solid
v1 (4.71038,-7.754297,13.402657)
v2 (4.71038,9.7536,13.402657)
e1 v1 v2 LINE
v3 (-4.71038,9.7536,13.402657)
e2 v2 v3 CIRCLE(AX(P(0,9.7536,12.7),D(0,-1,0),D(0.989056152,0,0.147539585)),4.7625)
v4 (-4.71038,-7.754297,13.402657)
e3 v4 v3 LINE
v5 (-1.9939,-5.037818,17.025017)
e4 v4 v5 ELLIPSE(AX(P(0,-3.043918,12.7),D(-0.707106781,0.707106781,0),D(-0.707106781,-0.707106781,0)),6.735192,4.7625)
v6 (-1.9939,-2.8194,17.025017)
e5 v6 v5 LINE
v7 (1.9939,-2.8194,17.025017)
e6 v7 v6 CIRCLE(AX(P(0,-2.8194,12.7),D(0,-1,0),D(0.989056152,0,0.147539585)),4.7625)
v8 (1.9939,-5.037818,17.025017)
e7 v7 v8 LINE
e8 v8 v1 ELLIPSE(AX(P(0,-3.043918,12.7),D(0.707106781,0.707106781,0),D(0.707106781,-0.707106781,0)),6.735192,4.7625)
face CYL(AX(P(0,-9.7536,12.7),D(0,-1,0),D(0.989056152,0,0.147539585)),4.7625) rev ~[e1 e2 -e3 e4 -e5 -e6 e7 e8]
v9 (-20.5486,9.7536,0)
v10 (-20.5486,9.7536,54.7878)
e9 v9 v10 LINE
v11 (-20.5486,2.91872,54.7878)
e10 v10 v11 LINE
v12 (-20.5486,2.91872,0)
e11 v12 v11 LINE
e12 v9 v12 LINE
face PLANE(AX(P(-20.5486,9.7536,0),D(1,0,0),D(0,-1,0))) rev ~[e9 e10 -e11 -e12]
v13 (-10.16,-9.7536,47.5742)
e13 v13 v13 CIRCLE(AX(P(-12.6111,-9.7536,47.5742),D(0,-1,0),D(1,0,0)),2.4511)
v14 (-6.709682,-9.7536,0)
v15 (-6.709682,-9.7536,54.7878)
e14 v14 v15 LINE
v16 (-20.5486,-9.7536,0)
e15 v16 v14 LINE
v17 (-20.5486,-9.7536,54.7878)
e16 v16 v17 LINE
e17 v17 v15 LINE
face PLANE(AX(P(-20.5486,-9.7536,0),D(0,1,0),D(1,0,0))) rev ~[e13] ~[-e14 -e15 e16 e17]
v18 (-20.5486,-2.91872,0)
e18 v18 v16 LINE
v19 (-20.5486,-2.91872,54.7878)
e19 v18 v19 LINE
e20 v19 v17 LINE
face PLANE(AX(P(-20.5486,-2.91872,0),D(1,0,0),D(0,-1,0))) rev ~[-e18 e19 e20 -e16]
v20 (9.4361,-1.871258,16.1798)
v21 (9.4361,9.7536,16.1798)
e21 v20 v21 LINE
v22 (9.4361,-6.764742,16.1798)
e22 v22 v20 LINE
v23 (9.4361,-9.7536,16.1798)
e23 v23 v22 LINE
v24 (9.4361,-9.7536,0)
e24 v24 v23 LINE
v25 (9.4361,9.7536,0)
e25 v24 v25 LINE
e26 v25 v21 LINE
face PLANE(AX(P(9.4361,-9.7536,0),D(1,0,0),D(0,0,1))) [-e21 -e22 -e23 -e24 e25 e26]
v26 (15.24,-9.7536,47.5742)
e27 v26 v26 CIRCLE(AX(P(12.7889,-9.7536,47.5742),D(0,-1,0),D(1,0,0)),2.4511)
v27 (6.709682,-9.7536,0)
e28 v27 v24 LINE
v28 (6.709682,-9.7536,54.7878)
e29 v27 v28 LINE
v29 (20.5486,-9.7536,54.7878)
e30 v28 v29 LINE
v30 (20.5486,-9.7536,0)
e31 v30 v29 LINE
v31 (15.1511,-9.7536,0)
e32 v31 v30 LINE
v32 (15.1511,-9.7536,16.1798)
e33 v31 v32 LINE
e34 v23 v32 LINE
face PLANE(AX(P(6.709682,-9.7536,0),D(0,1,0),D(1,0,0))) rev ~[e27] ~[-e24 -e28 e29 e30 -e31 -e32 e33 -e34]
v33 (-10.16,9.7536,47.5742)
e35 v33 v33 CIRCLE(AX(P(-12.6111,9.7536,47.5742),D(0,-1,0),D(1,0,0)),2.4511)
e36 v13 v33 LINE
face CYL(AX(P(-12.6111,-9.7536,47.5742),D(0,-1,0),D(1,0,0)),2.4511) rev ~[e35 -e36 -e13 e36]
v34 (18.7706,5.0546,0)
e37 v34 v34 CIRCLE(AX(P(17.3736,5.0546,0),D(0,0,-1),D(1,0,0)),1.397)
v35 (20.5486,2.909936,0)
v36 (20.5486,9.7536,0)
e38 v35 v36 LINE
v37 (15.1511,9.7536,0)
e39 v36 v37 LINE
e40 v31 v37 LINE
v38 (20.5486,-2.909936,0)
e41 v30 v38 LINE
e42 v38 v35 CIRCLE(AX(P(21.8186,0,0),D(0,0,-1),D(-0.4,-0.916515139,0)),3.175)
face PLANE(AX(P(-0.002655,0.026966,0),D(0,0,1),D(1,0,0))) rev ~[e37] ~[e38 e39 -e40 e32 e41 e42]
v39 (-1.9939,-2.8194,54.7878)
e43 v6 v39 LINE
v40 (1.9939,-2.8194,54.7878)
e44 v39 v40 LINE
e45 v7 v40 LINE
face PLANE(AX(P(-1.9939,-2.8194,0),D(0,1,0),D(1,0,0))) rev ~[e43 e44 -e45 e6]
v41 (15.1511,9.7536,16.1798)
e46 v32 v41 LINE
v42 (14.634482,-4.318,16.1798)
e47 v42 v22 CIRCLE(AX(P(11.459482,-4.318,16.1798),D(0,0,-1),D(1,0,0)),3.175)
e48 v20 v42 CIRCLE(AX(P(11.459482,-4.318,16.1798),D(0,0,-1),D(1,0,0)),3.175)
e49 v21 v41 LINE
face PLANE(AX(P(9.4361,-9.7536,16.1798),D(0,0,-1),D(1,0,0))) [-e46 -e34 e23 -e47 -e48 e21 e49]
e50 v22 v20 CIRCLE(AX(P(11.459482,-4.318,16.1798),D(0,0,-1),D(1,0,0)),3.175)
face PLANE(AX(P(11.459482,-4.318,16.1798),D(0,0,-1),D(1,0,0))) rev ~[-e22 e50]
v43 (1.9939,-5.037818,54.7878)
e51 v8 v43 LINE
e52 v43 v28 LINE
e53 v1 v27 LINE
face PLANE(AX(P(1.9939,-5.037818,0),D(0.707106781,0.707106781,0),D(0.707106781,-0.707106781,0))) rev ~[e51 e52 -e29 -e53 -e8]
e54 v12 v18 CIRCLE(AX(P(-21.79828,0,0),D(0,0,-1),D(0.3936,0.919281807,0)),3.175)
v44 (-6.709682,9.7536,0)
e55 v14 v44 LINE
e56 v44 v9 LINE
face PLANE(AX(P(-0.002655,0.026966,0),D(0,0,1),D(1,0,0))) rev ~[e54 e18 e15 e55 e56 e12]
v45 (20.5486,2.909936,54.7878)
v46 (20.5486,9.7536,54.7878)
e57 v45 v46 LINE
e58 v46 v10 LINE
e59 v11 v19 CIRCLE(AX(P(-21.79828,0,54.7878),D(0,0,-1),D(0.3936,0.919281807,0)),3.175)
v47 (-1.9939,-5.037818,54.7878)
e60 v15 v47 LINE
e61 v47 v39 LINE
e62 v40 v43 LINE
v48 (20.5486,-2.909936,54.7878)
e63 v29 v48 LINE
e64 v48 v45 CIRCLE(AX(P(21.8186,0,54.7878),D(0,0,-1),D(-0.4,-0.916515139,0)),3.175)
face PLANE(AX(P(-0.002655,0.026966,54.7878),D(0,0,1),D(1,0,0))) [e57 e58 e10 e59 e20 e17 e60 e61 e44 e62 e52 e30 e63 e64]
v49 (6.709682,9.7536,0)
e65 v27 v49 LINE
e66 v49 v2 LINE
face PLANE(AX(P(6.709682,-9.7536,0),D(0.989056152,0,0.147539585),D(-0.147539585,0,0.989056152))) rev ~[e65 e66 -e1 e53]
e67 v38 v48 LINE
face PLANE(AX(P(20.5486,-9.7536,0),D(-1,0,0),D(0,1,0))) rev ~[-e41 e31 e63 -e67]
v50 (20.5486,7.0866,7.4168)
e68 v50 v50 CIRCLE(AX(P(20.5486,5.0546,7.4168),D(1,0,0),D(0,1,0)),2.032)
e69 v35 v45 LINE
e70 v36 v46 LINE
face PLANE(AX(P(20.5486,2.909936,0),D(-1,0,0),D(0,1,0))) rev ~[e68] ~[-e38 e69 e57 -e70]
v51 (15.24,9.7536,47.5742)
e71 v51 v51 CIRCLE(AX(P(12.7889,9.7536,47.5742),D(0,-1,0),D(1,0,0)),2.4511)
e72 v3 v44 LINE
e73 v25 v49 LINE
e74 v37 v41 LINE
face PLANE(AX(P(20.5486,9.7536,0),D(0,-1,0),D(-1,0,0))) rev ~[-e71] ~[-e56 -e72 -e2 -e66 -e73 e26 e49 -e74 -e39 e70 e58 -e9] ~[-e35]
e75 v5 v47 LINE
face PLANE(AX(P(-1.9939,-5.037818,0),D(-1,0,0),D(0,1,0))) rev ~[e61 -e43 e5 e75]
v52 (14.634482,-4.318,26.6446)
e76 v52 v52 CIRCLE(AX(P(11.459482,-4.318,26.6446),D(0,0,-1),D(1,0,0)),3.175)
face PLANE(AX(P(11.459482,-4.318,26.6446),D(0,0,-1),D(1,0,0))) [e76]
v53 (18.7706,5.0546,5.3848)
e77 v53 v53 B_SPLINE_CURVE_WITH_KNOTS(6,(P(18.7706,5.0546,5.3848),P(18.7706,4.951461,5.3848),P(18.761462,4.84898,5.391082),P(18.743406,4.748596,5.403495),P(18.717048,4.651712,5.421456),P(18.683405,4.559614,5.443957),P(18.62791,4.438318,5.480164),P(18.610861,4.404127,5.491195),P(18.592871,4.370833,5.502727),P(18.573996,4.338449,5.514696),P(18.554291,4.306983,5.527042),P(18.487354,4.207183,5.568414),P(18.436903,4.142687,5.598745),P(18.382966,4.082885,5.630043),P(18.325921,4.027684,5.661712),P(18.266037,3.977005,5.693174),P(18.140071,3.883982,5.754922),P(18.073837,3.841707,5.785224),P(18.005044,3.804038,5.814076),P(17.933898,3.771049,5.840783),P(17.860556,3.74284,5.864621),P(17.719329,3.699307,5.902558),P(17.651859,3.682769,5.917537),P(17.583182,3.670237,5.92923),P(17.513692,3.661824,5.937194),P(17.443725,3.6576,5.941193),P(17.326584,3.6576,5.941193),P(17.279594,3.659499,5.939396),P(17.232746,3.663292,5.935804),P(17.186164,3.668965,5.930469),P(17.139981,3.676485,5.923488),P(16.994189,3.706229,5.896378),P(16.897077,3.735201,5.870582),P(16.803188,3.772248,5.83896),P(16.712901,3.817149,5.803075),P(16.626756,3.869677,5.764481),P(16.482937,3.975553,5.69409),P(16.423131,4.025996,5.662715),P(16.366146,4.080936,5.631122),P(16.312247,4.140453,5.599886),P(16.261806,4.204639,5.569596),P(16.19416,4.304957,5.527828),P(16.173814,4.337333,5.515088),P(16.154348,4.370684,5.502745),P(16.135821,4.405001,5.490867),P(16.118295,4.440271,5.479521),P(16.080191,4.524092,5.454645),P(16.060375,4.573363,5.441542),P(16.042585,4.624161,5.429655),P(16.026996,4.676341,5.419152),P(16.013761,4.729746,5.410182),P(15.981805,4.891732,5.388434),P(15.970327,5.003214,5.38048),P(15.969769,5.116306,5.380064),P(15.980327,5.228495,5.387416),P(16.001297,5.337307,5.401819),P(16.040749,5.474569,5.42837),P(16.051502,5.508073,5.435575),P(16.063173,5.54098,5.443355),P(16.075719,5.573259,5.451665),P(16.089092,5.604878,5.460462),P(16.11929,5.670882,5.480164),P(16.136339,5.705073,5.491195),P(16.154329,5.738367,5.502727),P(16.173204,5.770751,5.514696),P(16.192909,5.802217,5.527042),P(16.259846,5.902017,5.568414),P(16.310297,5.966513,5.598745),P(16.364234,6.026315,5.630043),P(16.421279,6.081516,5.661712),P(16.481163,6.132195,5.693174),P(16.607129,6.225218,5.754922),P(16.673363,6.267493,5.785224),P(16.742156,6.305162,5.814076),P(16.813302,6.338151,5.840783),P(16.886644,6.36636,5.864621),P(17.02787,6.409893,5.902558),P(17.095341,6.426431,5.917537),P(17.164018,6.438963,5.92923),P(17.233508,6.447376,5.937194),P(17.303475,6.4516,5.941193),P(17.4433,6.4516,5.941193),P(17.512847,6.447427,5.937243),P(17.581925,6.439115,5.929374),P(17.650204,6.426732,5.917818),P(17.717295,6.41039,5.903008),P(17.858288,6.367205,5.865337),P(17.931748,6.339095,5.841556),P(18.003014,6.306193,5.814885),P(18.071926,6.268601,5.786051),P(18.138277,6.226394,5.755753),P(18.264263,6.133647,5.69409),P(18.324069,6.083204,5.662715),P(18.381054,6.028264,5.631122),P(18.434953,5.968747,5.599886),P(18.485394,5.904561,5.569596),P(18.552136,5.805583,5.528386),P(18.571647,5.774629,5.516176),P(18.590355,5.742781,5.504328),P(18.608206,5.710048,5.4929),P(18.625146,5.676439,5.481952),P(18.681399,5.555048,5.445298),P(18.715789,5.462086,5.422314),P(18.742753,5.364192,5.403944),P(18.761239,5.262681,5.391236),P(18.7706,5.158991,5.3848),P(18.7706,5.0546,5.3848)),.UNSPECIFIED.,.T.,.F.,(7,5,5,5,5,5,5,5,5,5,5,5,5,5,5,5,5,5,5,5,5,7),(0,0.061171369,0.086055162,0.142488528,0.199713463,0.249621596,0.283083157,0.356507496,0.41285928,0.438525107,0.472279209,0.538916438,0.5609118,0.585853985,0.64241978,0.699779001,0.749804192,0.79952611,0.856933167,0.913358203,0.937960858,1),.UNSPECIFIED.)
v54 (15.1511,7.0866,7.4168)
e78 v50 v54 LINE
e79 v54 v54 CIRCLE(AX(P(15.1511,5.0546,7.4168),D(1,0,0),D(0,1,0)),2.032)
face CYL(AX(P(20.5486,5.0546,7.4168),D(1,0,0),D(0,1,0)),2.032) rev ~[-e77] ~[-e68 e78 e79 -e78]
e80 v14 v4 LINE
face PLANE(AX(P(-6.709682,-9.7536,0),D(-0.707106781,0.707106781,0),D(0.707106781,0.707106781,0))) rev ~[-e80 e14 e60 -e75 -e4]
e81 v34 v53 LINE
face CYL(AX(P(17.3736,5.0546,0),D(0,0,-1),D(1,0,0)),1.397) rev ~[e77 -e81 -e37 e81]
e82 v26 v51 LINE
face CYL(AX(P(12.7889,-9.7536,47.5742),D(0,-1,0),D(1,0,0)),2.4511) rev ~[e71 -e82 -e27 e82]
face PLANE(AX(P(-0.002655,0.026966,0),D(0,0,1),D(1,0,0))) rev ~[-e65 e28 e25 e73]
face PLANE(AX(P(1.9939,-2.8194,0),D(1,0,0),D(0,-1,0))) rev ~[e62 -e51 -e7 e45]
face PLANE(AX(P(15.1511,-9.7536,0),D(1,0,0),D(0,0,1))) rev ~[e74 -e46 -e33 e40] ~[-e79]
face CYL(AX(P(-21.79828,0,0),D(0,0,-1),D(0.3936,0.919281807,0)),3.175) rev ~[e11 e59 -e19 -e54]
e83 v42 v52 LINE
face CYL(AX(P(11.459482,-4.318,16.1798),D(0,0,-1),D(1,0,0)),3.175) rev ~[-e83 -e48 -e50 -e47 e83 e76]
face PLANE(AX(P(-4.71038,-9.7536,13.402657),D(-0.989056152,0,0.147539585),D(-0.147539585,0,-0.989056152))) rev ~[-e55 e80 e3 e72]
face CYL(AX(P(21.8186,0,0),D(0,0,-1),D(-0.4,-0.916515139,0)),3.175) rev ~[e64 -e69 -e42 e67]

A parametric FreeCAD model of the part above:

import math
import FreeCAD as App
import Part
import Sketcher
Q = App.Units.Quantity


def add_polygon(sketch, points):
    """Adds a closed chain of lines whose ends are joined by coincident constraints."""
    first, n = sketch.GeometryCount, len(points)
    for a, b in zip(points, points[1:] + points[:1]):
        sketch.addGeometry(Part.LineSegment(App.Vector(*a, 0), App.Vector(*b, 0)), False)
    for i in range(n):
        sketch.addConstraint(Sketcher.Constraint("Coincident", first + i, 2, first + (i + 1) % n, 1))

doc = App.newDocument("Part")
body = doc.addObject("PartDesign::Body", "Body")

# Sketch on XY plane
sketch1 = body.newObject("Sketcher::SketchObject", "Sketch")
sketch1.AttachmentSupport = (doc.getObject("XY_Plane"), [""])
sketch1.MapMode = "FlatFace"
sketch1.addGeometry(Part.LineSegment(App.Vector(20.5, 2.9, 0), App.Vector(20.5, 9.8, 0)), False)
sketch1.addGeometry(Part.LineSegment(App.Vector(20.5, 9.8, 0), App.Vector(-20.5, 9.8, 0)), False)
sketch1.addGeometry(Part.LineSegment(App.Vector(-20.5, 9.8, 0), App.Vector(-20.5, 2.9, 0)), False)
sketch1.addGeometry(Part.ArcOfCircle(Part.Circle(App.Vector(-21.8, 0, 0), App.Vector(0, 0, 1), 3.2), math.radians(-67), math.radians(67)), False)
sketch1.addGeometry(Part.LineSegment(App.Vector(-20.5, -2.9, 0), App.Vector(-20.5, -9.8, 0)), False)
sketch1.addGeometry(Part.LineSegment(App.Vector(-20.5, -9.8, 0), App.Vector(-6.7, -9.8, 0)), False)
sketch1.addGeometry(Part.LineSegment(App.Vector(-6.7, -9.8, 0), App.Vector(-2, -5, 0)), False)
sketch1.addGeometry(Part.LineSegment(App.Vector(-2, -5, 0), App.Vector(-2, -2.8, 0)), False)
sketch1.addGeometry(Part.LineSegment(App.Vector(-2, -2.8, 0), App.Vector(2, -2.8, 0)), False)
sketch1.addGeometry(Part.LineSegment(App.Vector(2, -2.8, 0), App.Vector(2, -5, 0)), False)
sketch1.addGeometry(Part.LineSegment(App.Vector(2, -5, 0), App.Vector(6.7, -9.8, 0)), False)
sketch1.addGeometry(Part.LineSegment(App.Vector(6.7, -9.8, 0), App.Vector(20.5, -9.8, 0)), False)
sketch1.addGeometry(Part.LineSegment(App.Vector(20.5, -9.8, 0), App.Vector(20.5, -2.9, 0)), False)
sketch1.addGeometry(Part.ArcOfCircle(Part.Circle(App.Vector(21.8, 0, 0), App.Vector(0, 0, 1), 3.2), math.radians(114), math.radians(246)), False)
sketch1.addConstraint(Sketcher.Constraint("Coincident", 0, 2, 1, 1))
sketch1.addConstraint(Sketcher.Constraint("Coincident", 1, 2, 2, 1))
sketch1.addConstraint(Sketcher.Constraint("Coincident", 2, 2, 3, 2))
sketch1.addConstraint(Sketcher.Constraint("Coincident", 3, 1, 4, 1))
sketch1.addConstraint(Sketcher.Constraint("Coincident", 4, 2, 5, 1))
sketch1.addConstraint(Sketcher.Constraint("Coincident", 5, 2, 6, 1))
sketch1.addConstraint(Sketcher.Constraint("Coincident", 6, 2, 7, 1))
sketch1.addConstraint(Sketcher.Constraint("Coincident", 7, 2, 8, 1))
sketch1.addConstraint(Sketcher.Constraint("Coincident", 8, 2, 9, 1))
sketch1.addConstraint(Sketcher.Constraint("Coincident", 9, 2, 10, 1))
sketch1.addConstraint(Sketcher.Constraint("Coincident", 10, 2, 11, 1))
sketch1.addConstraint(Sketcher.Constraint("Coincident", 11, 2, 12, 1))
sketch1.addConstraint(Sketcher.Constraint("Coincident", 12, 2, 13, 2))
sketch1.addConstraint(Sketcher.Constraint("Coincident", 13, 1, 0, 1))
sketch1.addConstraint(Sketcher.Constraint("Vertical", 0))
sketch1.addConstraint(Sketcher.Constraint("Horizontal", 1))
sketch1.addConstraint(Sketcher.Constraint("Vertical", 2))
sketch1.addConstraint(Sketcher.Constraint("Vertical", 4))
sketch1.addConstraint(Sketcher.Constraint("Horizontal", 5))
sketch1.addConstraint(Sketcher.Constraint("Vertical", 7))
sketch1.addConstraint(Sketcher.Constraint("Horizontal", 8))
sketch1.addConstraint(Sketcher.Constraint("Vertical", 9))
sketch1.addConstraint(Sketcher.Constraint("Horizontal", 11))
sketch1.addConstraint(Sketcher.Constraint("Vertical", 12))
sketch1.addConstraint(Sketcher.Constraint("Equal", 3, 13))
sketch1.addConstraint(Sketcher.Constraint("Symmetric", 0, 2, 4, 2, -1, 1))
sketch1.addConstraint(Sketcher.Constraint("Symmetric", 1, 2, 11, 2, -1, 1))
sketch1.addConstraint(Sketcher.Constraint("Symmetric", 6, 2, 9, 2, -2))
sketch1.addConstraint(Sketcher.Constraint("Symmetric", 2, 2, 3, 1, -1))
sketch1.addConstraint(Sketcher.Constraint("PointOnObject", 13, 3, -1))
sketch1.addConstraint(Sketcher.Constraint("Perpendicular", 6, 10))
sketch1.addConstraint(Sketcher.Constraint("Equal", 5, 11))
sketch1.addConstraint(Sketcher.Constraint("Radius", 3, Q("0.125 in")))
sketch1.addConstraint(Sketcher.Constraint("DistanceX", 1, 2, 1, 1, Q("1.618 in")))
sketch1.addConstraint(Sketcher.Constraint("DistanceX", 8, 1, 8, 2, Q("0.157 in")))
sketch1.addConstraint(Sketcher.Constraint("DistanceX", 0, 2, 13, 3, Q("0.05 in")))
sketch1.addConstraint(Sketcher.Constraint("DistanceY", -1, 1, 0, 2, Q("0.384 in")))
sketch1.addConstraint(Sketcher.Constraint("DistanceY", 7, 2, -1, 1, Q("0.111 in")))
sketch1.addConstraint(Sketcher.Constraint("DistanceX", 3, 3, -1, 1, Q("0.8582 in")))
sketch1.addConstraint(Sketcher.Constraint("DistanceX", 5, 1, 5, 2, Q("13.838918 mm")))
pad1 = body.newObject("PartDesign::Pad", "Pad")
pad1.Profile = sketch1
pad1.Length = Q("2.157 in")

# Sketch on XZ plane
sketch2 = body.newObject("Sketcher::SketchObject", "Sketch001")
sketch2.AttachmentSupport = (doc.getObject("XZ_Plane"), [""])
sketch2.MapMode = "FlatFace"
sketch2.AttachmentOffset = App.Placement(App.Vector(0, 0, 0.384 * 25.4), App.Rotation())
sketch2.addGeometry(Part.Circle(App.Vector(-12.6, 47.6, 0), App.Vector(0, 0, 1), 2.5), False)  # 0
sketch2.addGeometry(Part.Circle(App.Vector(12.8, 47.6, 0), App.Vector(0, 0, 1), 2.5), False)  # 1
add_polygon(sketch2, [(9.4, 16.2), (9.4, 0), (15.2, 0), (15.2, 16.2)])  # lines 2-5
sketch2.addGeometry(Part.LineSegment(App.Vector(6.7, 0, 0), App.Vector(4.7, 13.4, 0)), False)  # 6
sketch2.addGeometry(Part.ArcOfCircle(Part.Circle(App.Vector(0, 12.7, 0), App.Vector(0, 0, 1), 4.8), math.radians(8), math.radians(172)), False)  # 7
sketch2.addGeometry(Part.LineSegment(App.Vector(-4.7, 13.4, 0), App.Vector(-6.7, 0, 0)), False)  # 8
sketch2.addGeometry(Part.LineSegment(App.Vector(-6.7, 0, 0), App.Vector(6.7, 0, 0)), False)  # 9
sketch2.addConstraint(Sketcher.Constraint("Tangent", 6, 2, 7, 1))
sketch2.addConstraint(Sketcher.Constraint("Tangent", 7, 2, 8, 1))
sketch2.addConstraint(Sketcher.Constraint("Coincident", 8, 2, 9, 1))
sketch2.addConstraint(Sketcher.Constraint("Coincident", 9, 2, 6, 1))
sketch2.addConstraint(Sketcher.Constraint("Vertical", 2))
sketch2.addConstraint(Sketcher.Constraint("Horizontal", 3))
sketch2.addConstraint(Sketcher.Constraint("Vertical", 4))
sketch2.addConstraint(Sketcher.Constraint("Horizontal", 5))
sketch2.addConstraint(Sketcher.Constraint("Horizontal", 9))
sketch2.addConstraint(Sketcher.Constraint("Equal", 0, 1))
sketch2.addConstraint(Sketcher.Constraint("Symmetric", 8, 2, 9, 2, -1, 1))
sketch2.addConstraint(Sketcher.Constraint("PointOnObject", 7, 3, -2))
sketch2.addConstraint(Sketcher.Constraint("PointOnObject", 2, 2, -1))
sketch2.addConstraint(Sketcher.Constraint("Horizontal", 0, 3, 1, 3))
sketch2.addConstraint(Sketcher.Constraint("Diameter", 0, Q("0.193 in")))
sketch2.addConstraint(Sketcher.Constraint("Radius", 7, Q("0.1875 in")))
sketch2.addConstraint(Sketcher.Constraint("DistanceX", 0, 3, 1, 3, Q("1 in")))
sketch2.addConstraint(Sketcher.Constraint("DistanceY", -1, 1, 7, 3, Q("0.5 in")))
sketch2.addConstraint(Sketcher.Constraint("DistanceX", 3, 1, 3, 2, Q("0.225 in")))
sketch2.addConstraint(Sketcher.Constraint("DistanceY", 2, 2, 2, 1, Q("0.637 in")))
sketch2.addConstraint(Sketcher.Constraint("DistanceY", -1, 1, 0, 3, Q("1.873 in")))
sketch2.addConstraint(Sketcher.Constraint("DistanceX", 2, 2, 1, 3, Q("0.132 in")))
sketch2.addConstraint(Sketcher.Constraint("DistanceX", 0, 3, -1, 1, Q("0.4965 in")))
sketch2.addConstraint(Sketcher.Constraint("DistanceX", 9, 1, 9, 2, Q("13.419365 mm")))
pocket1 = body.newObject("PartDesign::Pocket", "Pocket")
pocket1.Profile = sketch2
pocket1.Length = Q("1 in")

# Sketch on XY plane
sketch3 = body.newObject("Sketcher::SketchObject", "Sketch002")
sketch3.AttachmentSupport = (doc.getObject("XY_Plane"), [""])
sketch3.MapMode = "FlatFace"
sketch3.AttachmentOffset = App.Placement(App.Vector(0, 0, 0.637 * 25.4), App.Rotation())
sketch3.addGeometry(Part.Circle(App.Vector(11.5, -4.3, 0), App.Vector(0, 0, 1), 3.2), False)
sketch3.addConstraint(Sketcher.Constraint("Diameter", 0, Q("0.25 in")))
sketch3.addConstraint(Sketcher.Constraint("DistanceY", 0, 3, -1, 1, Q("0.17 in")))
sketch3.addConstraint(Sketcher.Constraint("DistanceX", -1, 1, 0, 3, Q("11.459482 mm")))
pocket2 = body.newObject("PartDesign::Pocket", "Pocket001")
pocket2.Profile = sketch3
pocket2.Length = Q("0.412 in")
pocket2.Reversed = True

# Sketch on YZ plane
sketch4 = body.newObject("Sketcher::SketchObject", "Sketch003")
sketch4.AttachmentSupport = (doc.getObject("YZ_Plane"), [""])
sketch4.MapMode = "FlatFace"
sketch4.AttachmentOffset = App.Placement(App.Vector(0, 0, 0.809 * 25.4), App.Rotation())
sketch4.addGeometry(Part.Circle(App.Vector(5.1, 7.4, 0), App.Vector(0, 0, 1), 2), False)
sketch4.addConstraint(Sketcher.Constraint("Diameter", 0, Q("0.16 in")))
sketch4.addConstraint(Sketcher.Constraint("DistanceX", -1, 1, 0, 3, Q("0.199 in")))
sketch4.addConstraint(Sketcher.Constraint("DistanceY", -1, 1, 0, 3, Q("0.292 in")))
pocket3 = body.newObject("PartDesign::Pocket", "Pocket002")
pocket3.Profile = sketch4
pocket3.Length = Q("0.2125 in")

# Sketch on XY plane
sketch5 = body.newObject("Sketcher::SketchObject", "Sketch004")
sketch5.AttachmentSupport = (doc.getObject("XY_Plane"), [""])
sketch5.MapMode = "FlatFace"
sketch5.addGeometry(Part.Circle(App.Vector(17.4, 5.1, 0), App.Vector(0, 0, 1), 1.4), False)
sketch5.addConstraint(Sketcher.Constraint("Diameter", 0, Q("0.11 in")))
sketch5.addConstraint(Sketcher.Constraint("DistanceX", -1, 1, 0, 3, Q("0.684 in")))
sketch5.addConstraint(Sketcher.Constraint("DistanceY", -1, 1, 0, 3, Q("0.199 in")))
pocket4 = body.newObject("PartDesign::Pocket", "Pocket003")
pocket4.Profile = sketch5
pocket4.Length = 5.942193
pocket4.Reversed = True

doc.recompute()
